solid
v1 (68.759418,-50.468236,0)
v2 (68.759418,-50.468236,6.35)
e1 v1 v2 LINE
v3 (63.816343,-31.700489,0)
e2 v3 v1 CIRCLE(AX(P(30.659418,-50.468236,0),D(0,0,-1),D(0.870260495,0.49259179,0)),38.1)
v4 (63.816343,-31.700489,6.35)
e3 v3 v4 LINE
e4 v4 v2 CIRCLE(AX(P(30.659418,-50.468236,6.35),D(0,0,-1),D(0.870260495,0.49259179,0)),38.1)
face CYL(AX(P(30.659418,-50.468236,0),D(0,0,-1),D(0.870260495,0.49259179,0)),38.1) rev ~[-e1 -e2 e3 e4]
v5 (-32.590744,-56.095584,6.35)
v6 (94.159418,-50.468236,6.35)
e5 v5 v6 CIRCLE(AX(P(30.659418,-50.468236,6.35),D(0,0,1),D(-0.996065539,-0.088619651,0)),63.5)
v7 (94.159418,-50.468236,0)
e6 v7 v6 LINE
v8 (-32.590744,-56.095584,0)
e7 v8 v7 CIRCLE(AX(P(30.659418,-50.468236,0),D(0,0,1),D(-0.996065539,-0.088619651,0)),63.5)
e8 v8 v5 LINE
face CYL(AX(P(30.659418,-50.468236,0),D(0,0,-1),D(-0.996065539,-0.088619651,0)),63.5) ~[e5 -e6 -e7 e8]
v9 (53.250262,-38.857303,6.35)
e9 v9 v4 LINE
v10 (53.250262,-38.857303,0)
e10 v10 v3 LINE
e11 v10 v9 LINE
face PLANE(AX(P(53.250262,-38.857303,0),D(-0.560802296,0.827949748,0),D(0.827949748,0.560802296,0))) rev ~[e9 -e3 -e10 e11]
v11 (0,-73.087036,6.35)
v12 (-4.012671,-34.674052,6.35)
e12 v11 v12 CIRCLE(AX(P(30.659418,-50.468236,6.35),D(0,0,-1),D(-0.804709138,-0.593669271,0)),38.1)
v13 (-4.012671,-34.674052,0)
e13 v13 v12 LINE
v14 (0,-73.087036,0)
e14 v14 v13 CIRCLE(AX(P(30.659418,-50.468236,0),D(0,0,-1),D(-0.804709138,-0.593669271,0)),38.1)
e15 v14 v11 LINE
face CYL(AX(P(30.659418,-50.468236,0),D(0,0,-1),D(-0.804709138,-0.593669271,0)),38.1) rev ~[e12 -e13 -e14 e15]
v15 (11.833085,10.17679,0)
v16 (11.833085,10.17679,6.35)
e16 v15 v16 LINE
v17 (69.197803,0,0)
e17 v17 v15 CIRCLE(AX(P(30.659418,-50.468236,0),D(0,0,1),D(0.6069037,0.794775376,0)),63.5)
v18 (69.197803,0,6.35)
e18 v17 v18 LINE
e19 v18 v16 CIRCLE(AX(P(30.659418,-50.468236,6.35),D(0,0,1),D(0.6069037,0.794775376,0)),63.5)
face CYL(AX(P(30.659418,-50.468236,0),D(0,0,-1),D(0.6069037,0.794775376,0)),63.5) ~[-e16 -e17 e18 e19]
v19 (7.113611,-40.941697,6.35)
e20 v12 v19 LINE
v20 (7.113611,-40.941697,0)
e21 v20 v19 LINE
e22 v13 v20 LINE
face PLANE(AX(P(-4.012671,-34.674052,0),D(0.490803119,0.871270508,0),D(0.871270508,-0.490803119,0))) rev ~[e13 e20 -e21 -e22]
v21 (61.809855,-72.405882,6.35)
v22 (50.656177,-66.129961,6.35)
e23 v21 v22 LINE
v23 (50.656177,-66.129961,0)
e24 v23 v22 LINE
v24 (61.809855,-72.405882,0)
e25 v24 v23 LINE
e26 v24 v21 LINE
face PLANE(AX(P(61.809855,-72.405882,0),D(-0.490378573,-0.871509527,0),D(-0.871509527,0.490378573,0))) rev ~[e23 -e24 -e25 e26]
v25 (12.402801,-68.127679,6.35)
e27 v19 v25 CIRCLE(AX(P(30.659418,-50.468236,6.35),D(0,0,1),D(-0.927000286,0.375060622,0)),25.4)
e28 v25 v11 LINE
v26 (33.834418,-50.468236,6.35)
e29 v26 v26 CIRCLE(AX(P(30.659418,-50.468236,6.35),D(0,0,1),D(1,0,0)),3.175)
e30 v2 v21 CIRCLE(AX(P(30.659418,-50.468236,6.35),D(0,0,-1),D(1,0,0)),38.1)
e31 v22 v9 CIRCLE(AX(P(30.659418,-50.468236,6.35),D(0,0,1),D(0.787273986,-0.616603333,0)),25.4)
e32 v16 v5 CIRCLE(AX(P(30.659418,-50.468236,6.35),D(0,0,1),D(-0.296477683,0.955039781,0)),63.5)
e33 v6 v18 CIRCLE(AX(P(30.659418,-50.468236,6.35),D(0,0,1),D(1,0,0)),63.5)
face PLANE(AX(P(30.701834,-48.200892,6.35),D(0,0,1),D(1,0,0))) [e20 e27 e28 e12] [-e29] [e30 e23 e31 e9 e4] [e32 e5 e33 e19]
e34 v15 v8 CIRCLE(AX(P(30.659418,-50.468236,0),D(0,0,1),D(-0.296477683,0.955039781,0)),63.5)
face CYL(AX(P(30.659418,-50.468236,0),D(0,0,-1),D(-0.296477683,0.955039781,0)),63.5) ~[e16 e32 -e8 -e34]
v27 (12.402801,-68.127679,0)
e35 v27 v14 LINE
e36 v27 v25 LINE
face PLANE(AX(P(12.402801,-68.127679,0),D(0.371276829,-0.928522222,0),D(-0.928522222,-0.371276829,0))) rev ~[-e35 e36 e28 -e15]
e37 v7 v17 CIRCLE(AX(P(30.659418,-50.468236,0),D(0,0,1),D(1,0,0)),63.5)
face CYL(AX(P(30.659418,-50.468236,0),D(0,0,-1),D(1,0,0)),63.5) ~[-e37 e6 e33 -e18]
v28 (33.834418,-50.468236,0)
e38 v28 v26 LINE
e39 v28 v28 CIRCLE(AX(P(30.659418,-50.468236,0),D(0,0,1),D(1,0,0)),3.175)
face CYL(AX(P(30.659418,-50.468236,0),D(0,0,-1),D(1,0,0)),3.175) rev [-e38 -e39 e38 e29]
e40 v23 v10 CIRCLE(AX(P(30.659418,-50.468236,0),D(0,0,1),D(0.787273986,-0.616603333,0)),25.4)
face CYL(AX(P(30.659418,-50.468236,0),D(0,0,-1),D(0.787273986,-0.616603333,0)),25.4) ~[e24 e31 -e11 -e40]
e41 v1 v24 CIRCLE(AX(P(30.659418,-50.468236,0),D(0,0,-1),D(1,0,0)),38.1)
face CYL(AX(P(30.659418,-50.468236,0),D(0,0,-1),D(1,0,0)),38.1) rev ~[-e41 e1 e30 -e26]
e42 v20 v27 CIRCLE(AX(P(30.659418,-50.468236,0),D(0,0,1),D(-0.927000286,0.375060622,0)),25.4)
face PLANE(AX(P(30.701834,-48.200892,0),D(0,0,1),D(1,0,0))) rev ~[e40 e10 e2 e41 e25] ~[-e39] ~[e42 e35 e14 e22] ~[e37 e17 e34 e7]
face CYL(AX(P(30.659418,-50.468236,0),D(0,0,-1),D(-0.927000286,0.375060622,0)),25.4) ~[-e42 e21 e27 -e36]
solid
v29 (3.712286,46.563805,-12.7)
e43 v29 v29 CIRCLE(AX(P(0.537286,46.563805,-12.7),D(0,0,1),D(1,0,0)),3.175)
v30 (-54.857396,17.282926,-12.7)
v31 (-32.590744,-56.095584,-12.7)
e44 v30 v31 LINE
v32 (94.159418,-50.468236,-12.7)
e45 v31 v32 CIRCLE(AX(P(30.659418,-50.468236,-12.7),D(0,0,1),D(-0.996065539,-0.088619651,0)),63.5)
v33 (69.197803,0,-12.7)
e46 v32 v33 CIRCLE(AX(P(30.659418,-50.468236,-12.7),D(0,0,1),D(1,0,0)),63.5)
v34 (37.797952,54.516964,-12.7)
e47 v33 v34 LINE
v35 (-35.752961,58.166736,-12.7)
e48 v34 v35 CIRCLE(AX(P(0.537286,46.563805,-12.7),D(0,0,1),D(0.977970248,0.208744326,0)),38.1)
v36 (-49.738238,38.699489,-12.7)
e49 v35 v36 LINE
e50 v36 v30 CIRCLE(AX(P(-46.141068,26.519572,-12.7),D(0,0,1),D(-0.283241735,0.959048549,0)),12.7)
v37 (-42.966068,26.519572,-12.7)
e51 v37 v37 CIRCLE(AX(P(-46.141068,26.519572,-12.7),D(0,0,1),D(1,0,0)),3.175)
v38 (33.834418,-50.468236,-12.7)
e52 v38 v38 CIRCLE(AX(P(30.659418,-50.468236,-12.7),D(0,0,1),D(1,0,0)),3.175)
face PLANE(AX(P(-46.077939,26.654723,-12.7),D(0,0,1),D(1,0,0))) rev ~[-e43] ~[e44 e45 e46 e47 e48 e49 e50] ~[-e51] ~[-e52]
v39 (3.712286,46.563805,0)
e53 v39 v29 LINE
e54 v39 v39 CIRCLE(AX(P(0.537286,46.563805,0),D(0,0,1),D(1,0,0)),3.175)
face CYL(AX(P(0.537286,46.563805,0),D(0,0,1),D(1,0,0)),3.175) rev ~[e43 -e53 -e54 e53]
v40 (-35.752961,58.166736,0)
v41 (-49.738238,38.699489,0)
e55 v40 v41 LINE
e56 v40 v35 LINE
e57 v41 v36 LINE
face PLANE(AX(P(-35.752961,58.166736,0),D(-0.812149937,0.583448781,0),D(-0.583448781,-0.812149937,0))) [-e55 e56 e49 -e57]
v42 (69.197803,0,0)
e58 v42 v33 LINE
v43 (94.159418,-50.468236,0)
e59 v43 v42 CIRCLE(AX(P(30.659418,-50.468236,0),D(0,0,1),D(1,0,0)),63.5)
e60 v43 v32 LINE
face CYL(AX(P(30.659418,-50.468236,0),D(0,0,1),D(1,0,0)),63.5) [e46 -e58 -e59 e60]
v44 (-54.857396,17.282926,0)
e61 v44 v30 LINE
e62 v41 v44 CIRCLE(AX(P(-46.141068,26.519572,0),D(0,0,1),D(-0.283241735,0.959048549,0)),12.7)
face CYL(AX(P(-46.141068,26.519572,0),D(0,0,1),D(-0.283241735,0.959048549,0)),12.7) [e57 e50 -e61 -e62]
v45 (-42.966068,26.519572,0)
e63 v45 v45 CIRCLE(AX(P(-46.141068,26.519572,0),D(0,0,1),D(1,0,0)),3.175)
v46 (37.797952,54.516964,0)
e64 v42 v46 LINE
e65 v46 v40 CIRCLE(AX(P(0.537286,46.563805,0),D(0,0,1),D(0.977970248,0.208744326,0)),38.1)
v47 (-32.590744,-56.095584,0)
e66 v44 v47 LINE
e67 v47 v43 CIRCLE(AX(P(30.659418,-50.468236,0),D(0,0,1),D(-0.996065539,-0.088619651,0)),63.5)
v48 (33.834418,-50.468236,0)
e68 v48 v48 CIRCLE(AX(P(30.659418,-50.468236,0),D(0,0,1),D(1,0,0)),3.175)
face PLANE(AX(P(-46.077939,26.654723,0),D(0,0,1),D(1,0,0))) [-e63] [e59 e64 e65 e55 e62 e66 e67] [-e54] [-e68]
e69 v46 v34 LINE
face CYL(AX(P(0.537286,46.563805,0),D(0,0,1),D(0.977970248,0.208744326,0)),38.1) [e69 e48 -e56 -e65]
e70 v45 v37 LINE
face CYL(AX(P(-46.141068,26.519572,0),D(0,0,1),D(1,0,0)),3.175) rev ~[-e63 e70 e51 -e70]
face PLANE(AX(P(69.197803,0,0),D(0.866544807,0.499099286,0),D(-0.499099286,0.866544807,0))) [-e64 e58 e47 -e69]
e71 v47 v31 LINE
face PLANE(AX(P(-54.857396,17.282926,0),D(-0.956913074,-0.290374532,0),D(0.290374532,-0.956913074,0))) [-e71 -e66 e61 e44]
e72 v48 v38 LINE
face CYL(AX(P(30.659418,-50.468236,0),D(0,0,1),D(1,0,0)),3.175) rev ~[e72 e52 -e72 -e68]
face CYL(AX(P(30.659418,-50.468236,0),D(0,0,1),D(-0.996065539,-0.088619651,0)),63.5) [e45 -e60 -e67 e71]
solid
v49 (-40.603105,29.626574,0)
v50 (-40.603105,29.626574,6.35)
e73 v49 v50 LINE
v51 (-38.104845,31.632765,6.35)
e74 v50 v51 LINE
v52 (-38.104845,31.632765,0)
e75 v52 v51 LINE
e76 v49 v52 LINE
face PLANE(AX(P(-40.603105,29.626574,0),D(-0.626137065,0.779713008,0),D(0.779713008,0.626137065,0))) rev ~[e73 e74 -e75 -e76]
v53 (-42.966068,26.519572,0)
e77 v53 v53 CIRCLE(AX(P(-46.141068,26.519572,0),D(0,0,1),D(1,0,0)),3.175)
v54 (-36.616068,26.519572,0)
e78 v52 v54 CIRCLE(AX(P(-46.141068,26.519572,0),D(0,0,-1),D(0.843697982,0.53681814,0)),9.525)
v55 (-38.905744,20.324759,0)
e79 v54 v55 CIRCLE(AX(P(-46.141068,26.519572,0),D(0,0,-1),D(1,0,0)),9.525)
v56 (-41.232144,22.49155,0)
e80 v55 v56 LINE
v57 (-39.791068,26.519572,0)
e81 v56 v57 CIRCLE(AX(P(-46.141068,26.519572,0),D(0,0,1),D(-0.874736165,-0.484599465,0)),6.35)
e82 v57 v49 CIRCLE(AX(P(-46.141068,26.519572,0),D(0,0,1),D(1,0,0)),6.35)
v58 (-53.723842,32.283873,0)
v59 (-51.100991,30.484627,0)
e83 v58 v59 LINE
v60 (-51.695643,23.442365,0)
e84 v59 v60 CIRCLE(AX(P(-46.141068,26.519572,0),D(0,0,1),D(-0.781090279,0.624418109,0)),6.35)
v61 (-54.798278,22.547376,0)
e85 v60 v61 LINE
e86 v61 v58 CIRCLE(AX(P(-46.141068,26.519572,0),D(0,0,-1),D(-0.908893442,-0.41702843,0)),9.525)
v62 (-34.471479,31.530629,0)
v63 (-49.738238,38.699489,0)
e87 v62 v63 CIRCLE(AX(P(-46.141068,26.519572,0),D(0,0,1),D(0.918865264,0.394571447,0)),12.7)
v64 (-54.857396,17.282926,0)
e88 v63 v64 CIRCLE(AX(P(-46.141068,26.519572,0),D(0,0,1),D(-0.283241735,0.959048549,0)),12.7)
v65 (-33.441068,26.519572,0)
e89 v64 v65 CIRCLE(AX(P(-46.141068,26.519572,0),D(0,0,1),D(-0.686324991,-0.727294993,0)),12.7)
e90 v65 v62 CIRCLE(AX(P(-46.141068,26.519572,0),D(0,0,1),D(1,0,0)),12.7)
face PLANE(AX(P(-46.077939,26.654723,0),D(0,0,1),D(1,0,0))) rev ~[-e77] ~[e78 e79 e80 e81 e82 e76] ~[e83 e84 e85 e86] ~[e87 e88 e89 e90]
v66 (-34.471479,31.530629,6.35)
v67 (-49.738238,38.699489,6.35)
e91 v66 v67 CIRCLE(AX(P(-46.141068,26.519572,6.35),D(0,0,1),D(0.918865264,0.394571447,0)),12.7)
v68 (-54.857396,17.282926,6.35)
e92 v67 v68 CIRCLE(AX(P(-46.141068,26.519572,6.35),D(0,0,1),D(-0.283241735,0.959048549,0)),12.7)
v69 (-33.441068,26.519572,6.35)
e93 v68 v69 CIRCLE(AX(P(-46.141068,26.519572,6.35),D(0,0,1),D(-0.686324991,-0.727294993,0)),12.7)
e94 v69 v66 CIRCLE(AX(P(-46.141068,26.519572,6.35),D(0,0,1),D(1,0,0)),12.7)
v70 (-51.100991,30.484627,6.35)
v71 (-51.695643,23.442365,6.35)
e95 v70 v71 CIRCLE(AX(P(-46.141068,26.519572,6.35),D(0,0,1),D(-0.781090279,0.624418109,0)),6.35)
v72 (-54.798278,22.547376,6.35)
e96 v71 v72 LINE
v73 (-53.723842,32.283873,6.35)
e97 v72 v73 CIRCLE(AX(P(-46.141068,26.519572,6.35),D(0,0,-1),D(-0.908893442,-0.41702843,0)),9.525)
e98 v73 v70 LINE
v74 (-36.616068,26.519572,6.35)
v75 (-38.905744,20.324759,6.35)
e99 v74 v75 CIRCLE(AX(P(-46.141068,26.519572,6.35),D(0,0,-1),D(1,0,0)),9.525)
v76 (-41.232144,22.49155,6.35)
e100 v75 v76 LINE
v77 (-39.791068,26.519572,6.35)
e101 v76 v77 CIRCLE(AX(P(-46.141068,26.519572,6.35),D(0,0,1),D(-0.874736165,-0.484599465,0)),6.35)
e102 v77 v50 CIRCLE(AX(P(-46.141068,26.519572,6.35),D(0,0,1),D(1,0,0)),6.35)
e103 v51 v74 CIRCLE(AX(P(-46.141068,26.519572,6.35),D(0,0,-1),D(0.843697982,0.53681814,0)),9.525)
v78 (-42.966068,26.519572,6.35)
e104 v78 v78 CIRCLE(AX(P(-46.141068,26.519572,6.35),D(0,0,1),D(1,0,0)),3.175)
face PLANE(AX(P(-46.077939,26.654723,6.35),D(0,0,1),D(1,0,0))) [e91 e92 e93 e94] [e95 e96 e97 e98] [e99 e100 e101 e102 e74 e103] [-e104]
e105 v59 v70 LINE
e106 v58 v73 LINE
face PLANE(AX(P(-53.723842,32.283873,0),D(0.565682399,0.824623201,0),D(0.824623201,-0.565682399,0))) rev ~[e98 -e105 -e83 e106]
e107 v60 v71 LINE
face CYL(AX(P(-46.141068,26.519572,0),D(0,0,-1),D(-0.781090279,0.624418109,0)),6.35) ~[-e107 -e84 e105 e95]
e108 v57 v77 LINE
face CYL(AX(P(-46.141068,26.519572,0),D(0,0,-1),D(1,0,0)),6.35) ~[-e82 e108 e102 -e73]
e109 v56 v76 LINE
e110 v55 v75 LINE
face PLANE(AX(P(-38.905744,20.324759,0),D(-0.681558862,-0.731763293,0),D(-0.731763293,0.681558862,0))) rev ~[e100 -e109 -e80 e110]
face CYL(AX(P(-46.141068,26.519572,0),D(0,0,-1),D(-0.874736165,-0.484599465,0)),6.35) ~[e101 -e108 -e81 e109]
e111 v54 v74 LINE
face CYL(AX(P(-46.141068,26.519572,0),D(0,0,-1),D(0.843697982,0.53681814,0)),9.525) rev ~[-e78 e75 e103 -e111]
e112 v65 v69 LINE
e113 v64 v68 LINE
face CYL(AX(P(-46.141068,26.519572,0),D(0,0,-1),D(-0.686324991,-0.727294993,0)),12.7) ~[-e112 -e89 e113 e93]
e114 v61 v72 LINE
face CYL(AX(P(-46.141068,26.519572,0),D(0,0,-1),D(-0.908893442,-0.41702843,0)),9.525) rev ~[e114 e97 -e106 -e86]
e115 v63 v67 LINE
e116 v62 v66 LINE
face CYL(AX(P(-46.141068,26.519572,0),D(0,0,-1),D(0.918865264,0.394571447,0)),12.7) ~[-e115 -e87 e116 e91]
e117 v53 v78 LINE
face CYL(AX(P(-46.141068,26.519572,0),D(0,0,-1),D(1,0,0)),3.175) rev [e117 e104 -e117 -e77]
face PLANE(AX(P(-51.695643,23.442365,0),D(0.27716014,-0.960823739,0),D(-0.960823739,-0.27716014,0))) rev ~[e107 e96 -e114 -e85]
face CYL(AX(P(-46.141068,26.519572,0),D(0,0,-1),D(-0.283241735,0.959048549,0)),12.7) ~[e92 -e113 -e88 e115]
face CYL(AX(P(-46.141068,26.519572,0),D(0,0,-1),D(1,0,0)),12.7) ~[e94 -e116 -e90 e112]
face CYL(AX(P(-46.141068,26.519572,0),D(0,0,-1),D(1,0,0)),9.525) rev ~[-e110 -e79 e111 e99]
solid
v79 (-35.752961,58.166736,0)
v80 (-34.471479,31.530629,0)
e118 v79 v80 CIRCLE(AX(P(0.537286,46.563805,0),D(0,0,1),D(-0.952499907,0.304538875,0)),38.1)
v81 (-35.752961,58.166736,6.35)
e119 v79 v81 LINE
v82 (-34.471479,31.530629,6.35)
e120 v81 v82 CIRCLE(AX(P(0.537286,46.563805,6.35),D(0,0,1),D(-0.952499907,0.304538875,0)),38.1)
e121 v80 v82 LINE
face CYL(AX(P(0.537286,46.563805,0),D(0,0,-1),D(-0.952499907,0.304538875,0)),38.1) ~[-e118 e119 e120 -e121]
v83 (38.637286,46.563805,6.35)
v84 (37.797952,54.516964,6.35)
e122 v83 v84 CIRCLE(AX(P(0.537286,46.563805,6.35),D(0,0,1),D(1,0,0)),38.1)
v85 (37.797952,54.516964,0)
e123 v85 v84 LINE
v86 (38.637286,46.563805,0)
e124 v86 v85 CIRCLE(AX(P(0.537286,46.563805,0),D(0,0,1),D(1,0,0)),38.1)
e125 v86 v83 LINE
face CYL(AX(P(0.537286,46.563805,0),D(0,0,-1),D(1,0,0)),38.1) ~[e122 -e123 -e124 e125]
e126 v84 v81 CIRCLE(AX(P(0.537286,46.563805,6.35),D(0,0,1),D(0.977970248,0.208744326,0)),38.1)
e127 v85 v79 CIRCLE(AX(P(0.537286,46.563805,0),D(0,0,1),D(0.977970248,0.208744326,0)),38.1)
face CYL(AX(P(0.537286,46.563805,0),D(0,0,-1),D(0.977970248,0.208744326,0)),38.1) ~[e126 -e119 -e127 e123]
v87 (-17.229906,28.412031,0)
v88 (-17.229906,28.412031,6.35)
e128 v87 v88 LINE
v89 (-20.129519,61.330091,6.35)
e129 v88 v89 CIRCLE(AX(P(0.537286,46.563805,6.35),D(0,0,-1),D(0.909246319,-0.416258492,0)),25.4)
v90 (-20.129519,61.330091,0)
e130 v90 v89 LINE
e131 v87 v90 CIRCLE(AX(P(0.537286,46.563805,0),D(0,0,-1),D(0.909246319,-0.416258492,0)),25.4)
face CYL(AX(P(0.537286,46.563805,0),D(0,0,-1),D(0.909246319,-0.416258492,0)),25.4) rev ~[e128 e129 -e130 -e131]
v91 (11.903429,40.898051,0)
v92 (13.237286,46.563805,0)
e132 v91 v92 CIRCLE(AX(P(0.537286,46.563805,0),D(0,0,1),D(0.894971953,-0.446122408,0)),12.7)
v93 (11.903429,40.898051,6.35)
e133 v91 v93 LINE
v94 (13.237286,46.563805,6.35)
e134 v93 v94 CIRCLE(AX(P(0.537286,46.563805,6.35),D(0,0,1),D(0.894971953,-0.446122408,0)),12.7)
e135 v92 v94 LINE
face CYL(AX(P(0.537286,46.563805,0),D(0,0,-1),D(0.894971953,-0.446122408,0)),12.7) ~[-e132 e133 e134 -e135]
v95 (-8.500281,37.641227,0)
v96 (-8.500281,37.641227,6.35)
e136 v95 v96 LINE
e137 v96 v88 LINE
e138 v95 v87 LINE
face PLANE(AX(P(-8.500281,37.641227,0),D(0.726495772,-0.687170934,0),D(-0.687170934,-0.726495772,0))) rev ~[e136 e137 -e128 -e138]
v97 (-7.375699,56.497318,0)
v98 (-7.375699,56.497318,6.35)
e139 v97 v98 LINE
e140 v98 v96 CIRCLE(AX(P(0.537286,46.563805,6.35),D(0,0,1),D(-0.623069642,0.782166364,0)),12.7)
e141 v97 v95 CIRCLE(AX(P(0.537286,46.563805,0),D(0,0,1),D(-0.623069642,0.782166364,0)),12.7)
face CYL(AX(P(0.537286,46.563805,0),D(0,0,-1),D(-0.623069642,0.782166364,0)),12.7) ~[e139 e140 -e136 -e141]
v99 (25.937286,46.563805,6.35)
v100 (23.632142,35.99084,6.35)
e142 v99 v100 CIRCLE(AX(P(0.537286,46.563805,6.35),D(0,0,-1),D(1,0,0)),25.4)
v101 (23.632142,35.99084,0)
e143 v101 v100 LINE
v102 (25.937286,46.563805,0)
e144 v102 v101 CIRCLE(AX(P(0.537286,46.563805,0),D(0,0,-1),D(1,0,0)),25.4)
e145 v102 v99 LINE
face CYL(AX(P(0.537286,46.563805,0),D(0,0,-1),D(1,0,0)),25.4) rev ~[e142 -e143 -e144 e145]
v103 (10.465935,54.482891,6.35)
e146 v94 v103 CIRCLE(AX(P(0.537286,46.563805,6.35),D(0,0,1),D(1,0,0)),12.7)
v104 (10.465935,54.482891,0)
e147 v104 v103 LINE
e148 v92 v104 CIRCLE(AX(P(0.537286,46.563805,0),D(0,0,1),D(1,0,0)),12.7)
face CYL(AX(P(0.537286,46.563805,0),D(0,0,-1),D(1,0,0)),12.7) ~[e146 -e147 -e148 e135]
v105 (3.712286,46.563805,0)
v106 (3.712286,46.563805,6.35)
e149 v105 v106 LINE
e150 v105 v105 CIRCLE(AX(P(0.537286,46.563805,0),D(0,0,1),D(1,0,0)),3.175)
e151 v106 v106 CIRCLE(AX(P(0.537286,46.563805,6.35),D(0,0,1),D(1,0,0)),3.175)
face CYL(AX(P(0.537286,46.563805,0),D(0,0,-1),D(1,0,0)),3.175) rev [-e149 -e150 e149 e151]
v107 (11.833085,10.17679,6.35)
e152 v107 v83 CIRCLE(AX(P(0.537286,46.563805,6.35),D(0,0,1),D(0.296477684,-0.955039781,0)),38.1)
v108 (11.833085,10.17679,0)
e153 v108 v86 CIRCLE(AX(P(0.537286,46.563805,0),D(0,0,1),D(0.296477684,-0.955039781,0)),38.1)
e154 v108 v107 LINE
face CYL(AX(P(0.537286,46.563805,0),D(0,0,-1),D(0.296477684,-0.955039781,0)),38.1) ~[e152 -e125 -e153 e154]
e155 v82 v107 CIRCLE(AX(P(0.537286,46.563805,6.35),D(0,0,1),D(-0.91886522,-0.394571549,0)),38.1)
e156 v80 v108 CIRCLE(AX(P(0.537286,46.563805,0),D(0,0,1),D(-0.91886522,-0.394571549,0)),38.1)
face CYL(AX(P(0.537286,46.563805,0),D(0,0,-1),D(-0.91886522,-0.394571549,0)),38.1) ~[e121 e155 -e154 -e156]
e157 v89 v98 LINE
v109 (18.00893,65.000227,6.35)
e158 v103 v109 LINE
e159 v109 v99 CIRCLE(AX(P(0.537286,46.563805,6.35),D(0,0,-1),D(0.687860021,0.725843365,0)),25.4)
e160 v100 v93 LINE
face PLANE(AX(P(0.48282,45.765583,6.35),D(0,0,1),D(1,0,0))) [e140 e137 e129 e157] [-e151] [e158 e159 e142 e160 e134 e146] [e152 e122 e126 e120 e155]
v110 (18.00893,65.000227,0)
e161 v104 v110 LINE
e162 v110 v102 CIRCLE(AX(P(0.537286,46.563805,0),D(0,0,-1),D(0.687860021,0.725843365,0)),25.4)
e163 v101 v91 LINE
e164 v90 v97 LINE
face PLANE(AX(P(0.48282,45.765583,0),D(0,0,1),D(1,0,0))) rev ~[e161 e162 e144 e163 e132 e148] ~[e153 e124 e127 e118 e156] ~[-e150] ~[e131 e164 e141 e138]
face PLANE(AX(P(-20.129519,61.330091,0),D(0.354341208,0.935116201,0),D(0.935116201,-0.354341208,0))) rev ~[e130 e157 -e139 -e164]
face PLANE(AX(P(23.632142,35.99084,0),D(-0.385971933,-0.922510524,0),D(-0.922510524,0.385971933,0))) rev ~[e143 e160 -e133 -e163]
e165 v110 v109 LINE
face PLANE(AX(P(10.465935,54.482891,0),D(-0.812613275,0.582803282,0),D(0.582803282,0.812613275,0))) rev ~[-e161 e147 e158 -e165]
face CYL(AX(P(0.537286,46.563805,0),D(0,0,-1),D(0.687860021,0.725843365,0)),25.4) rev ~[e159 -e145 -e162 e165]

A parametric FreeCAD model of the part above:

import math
import FreeCAD as App
import Part
import Sketcher
Q = App.Units.Quantity

doc = App.newDocument("Part")
body = doc.addObject("PartDesign::Body", "Body")

# Sketch on XY plane
sketch1 = body.newObject("Sketcher::SketchObject", "Sketch")
sketch1.AttachmentSupport = (doc.getObject("XY_Plane"), [""])
sketch1.MapMode = "FlatFace"
sketch1.addGeometry(Part.ArcOfCircle(Part.Circle(App.Vector(0.537286, 46.563805, 0), App.Vector(0, 0, 1), 38.1), math.radians(162.269576), math.radians(203.239255)), False)
sketch1.addGeometry(Part.ArcOfCircle(Part.Circle(App.Vector(0.537286, 46.563805, 0), App.Vector(0, 0, 1), 38.1), math.radians(-156.760745), math.radians(-72.753833)), False)
sketch1.addGeometry(Part.ArcOfCircle(Part.Circle(App.Vector(0.537286, 46.563805, 0), App.Vector(0, 0, 1), 38.1), math.radians(-72.753833), math.radians(0)), False)
sketch1.addGeometry(Part.ArcOfCircle(Part.Circle(App.Vector(0.537286, 46.563805, 0), App.Vector(0, 0, 1), 38.1), math.radians(0), math.radians(12.048777)), False)
sketch1.addGeometry(Part.ArcOfCircle(Part.Circle(App.Vector(0.537286, 46.563805, 0), App.Vector(0, 0, 1), 38.1), math.radians(12.048777), math.radians(162.269576)), False)
sketch1.addGeometry(Part.ArcOfCircle(Part.Circle(App.Vector(0.537286, 46.563805, 0), App.Vector(0, 0, 1), 25.4), math.radians(144.454462), math.radians(225.613441)), False)
sketch1.addGeometry(Part.LineSegment(App.Vector(-20.129519, 61.330091, 0), App.Vector(-7.375699, 56.497318, 0)), False)
sketch1.addGeometry(Part.ArcOfCircle(Part.Circle(App.Vector(0.537286, 46.563805, 0), App.Vector(0, 0, 1), 12.7), math.radians(128.540644), math.radians(224.633173)), False)
sketch1.addGeometry(Part.LineSegment(App.Vector(-8.500281, 37.641227, 0), App.Vector(-17.229906, 28.412031, 0)), False)
sketch1.addGeometry(Part.ArcOfCircle(Part.Circle(App.Vector(0.537286, 46.563805, 0), App.Vector(0, 0, 1), 25.4), math.radians(0), math.radians(46.539051)), False)
sketch1.addGeometry(Part.ArcOfCircle(Part.Circle(App.Vector(0.537286, 46.563805, 0), App.Vector(0, 0, 1), 25.4), math.radians(-24.598595), math.radians(0)), False)
sketch1.addGeometry(Part.LineSegment(App.Vector(23.632142, 35.99084, 0), App.Vector(11.903429, 40.898051, 0)), False)
sketch1.addGeometry(Part.ArcOfCircle(Part.Circle(App.Vector(0.537286, 46.563805, 0), App.Vector(0, 0, 1), 12.7), math.radians(-26.495172), math.radians(0)), False)
sketch1.addGeometry(Part.ArcOfCircle(Part.Circle(App.Vector(0.537286, 46.563805, 0), App.Vector(0, 0, 1), 12.7), math.radians(0), math.radians(38.575844)), False)
sketch1.addGeometry(Part.LineSegment(App.Vector(10.465935, 54.482891, 0), App.Vector(18.00893, 65.000227, 0)), False)
sketch1.addGeometry(Part.Circle(App.Vector(0.537286, 46.563805, 0), App.Vector(0, 0, 1), 3.175), False)
sketch1.addConstraint(Sketcher.Constraint("Tangent", 0, 2, 1, 1))
sketch1.addConstraint(Sketcher.Constraint("Tangent", 1, 2, 2, 1))
sketch1.addConstraint(Sketcher.Constraint("Tangent", 2, 2, 3, 1))
sketch1.addConstraint(Sketcher.Constraint("Tangent", 3, 2, 4, 1))
sketch1.addConstraint(Sketcher.Constraint("Tangent", 4, 2, 0, 1))
sketch1.addConstraint(Sketcher.Constraint("Coincident", 5, 1, 6, 1))
sketch1.addConstraint(Sketcher.Constraint("Coincident", 6, 2, 7, 1))
sketch1.addConstraint(Sketcher.Constraint("Coincident", 7, 2, 8, 1))
sketch1.addConstraint(Sketcher.Constraint("Coincident", 8, 2, 5, 2))
sketch1.addConstraint(Sketcher.Constraint("Tangent", 9, 1, 10, 2))
sketch1.addConstraint(Sketcher.Constraint("Coincident", 10, 1, 11, 1))
sketch1.addConstraint(Sketcher.Constraint("Coincident", 11, 2, 12, 1))
sketch1.addConstraint(Sketcher.Constraint("Tangent", 12, 2, 13, 1))
sketch1.addConstraint(Sketcher.Constraint("Coincident", 13, 2, 14, 1))
sketch1.addConstraint(Sketcher.Constraint("Coincident", 14, 2, 9, 2))
sketch1.addConstraint(Sketcher.Constraint("Coincident", 2, 3, 0, 3))
sketch1.addConstraint(Sketcher.Constraint("Coincident", 5, 3, 0, 3))
sketch1.addConstraint(Sketcher.Constraint("Coincident", 7, 3, 0, 3))
sketch1.addConstraint(Sketcher.Constraint("Coincident", 9, 3, 0, 3))
sketch1.addConstraint(Sketcher.Constraint("Coincident", 12, 3, 0, 3))
sketch1.addConstraint(Sketcher.Constraint("Coincident", 15, 3, 0, 3))
sketch1.addConstraint(Sketcher.Constraint("Equal", 5, 9))
sketch1.addConstraint(Sketcher.Constraint("Equal", 9, 10))
sketch1.addConstraint(Sketcher.Constraint("Equal", 7, 12))
sketch1.addConstraint(Sketcher.Constraint("Equal", 12, 13))
sketch1.addConstraint(Sketcher.Constraint("Horizontal", 15, 3, 2, 2))
sketch1.addConstraint(Sketcher.Constraint("Horizontal", 2, 2, 9, 1))
sketch1.addConstraint(Sketcher.Constraint("Horizontal", 9, 1, 12, 2))
sketch1.addConstraint(Sketcher.Constraint("Radius", 5, Q("1 in")))
sketch1.addConstraint(Sketcher.Constraint("Radius", 0, Q("1.5 in")))
sketch1.addConstraint(Sketcher.Constraint("Radius", 7, Q("0.5 in")))
sketch1.addConstraint(Sketcher.Constraint("Diameter", 15, Q("0.25 in")))
sketch1.addConstraint(Sketcher.Constraint("DistanceX", 6, 2, -1, 1, 7.375699))
sketch1.addConstraint(Sketcher.Constraint("DistanceX", 3, 3, 1, 2, 11.2958))
sketch1.addConstraint(Sketcher.Constraint("DistanceY", 8, 2, 0, 2, 3.118598))
sketch1.addConstraint(Sketcher.Constraint("DistanceX", 11, 2, 14, 2, 6.105501))
sketch1.addConstraint(Sketcher.Constraint("Distance", 14, 12.942609))
sketch1.addConstraint(Sketcher.Constraint("DistanceX", 0, 2, -1, 1, 34.471479))
sketch1.addConstraint(Sketcher.Constraint("DistanceY", -1, 1, 0, 2, 31.530629))
sketch1.addConstraint(Sketcher.Constraint("DistanceY", -1, 1, 1, 2, 10.17679))
sketch1.addConstraint(Sketcher.Constraint("DistanceX", -1, 1, 3, 2, 37.797952))
sketch1.addConstraint(Sketcher.Constraint("DistanceX", 4, 2, -1, 1, 35.752961))
sketch1.addConstraint(Sketcher.Constraint("DistanceX", 5, 1, -1, 1, 20.129519))
sketch1.addConstraint(Sketcher.Constraint("DistanceX", 7, 2, -1, 1, 8.500281))
sketch1.addConstraint(Sketcher.Constraint("DistanceY", -1, 1, 10, 1, 35.99084))
sketch1.addConstraint(Sketcher.Constraint("DistanceX", -1, 1, 11, 2, 11.903429))
pad1 = body.newObject("PartDesign::Pad", "Pad")
pad1.Profile = sketch1
pad1.Length = Q("0.25 in")
body2 = doc.addObject("PartDesign::Body", "Body001")

# Sketch on XY plane
sketch2 = body2.newObject("Sketcher::SketchObject", "Sketch001")
sketch2.AttachmentSupport = (doc.getObject("XY_Plane001"), [""])
sketch2.MapMode = "FlatFace"
sketch2.addGeometry(Part.ArcOfCircle(Part.Circle(App.Vector(30.659418, -50.468236, 0), App.Vector(0, 0, 1), 63.5), math.radians(107.246167), math.radians(185.084202)), False)
sketch2.addGeometry(Part.ArcOfCircle(Part.Circle(App.Vector(30.659418, -50.468236, 0), App.Vector(0, 0, 1), 63.5), math.radians(-174.915798), math.radians(0)), False)
sketch2.addGeometry(Part.ArcOfCircle(Part.Circle(App.Vector(30.659418, -50.468236, 0), App.Vector(0, 0, 1), 63.5), math.radians(0), math.radians(52.634045)), False)
sketch2.addGeometry(Part.ArcOfCircle(Part.Circle(App.Vector(30.659418, -50.468236, 0), App.Vector(0, 0, 1), 63.5), math.radians(52.634045), math.radians(107.246167)), False)
sketch2.addGeometry(Part.ArcOfCircle(Part.Circle(App.Vector(30.659418, -50.468236, 0), App.Vector(0, 0, 1), 38.1), math.radians(155.509301), math.radians(216.417826)), False)
sketch2.addGeometry(Part.LineSegment(App.Vector(-4.012671, -34.674052, 0), App.Vector(7.113611, -40.941697, 0)), False)
sketch2.addGeometry(Part.ArcOfCircle(Part.Circle(App.Vector(30.659418, -50.468236, 0), App.Vector(0, 0, 1), 25.4), math.radians(157.97194), math.radians(224.047434)), False)
sketch2.addGeometry(Part.LineSegment(App.Vector(12.402801, -68.127679, 0), App.Vector(0, -73.087036, 0)), False)
sketch2.addGeometry(Part.ArcOfCircle(Part.Circle(App.Vector(30.659418, -50.468236, 0), App.Vector(0, 0, 1), 38.1), math.radians(-35.15506), math.radians(0)), False)
sketch2.addGeometry(Part.LineSegment(App.Vector(61.809855, -72.405882, 0), App.Vector(50.656177, -66.129961, 0)), False)
sketch2.addGeometry(Part.ArcOfCircle(Part.Circle(App.Vector(30.659418, -50.468236, 0), App.Vector(0, 0, 1), 25.4), math.radians(-38.068514), math.radians(27.201638)), False)
sketch2.addGeometry(Part.LineSegment(App.Vector(53.250262, -38.857303, 0), App.Vector(63.816343, -31.700489, 0)), False)
sketch2.addGeometry(Part.ArcOfCircle(Part.Circle(App.Vector(30.659418, -50.468236, 0), App.Vector(0, 0, 1), 38.1), math.radians(0), math.radians(29.511075)), False)
sketch2.addGeometry(Part.Circle(App.Vector(30.659418, -50.468236, 0), App.Vector(0, 0, 1), 3.175), False)
sketch2.addConstraint(Sketcher.Constraint("Tangent", 0, 2, 1, 1))
sketch2.addConstraint(Sketcher.Constraint("Tangent", 1, 2, 2, 1))
sketch2.addConstraint(Sketcher.Constraint("Tangent", 2, 2, 3, 1))
sketch2.addConstraint(Sketcher.Constraint("Tangent", 3, 2, 0, 1))
sketch2.addConstraint(Sketcher.Constraint("Coincident", 4, 1, 5, 1))
sketch2.addConstraint(Sketcher.Constraint("Coincident", 5, 2, 6, 1))
sketch2.addConstraint(Sketcher.Constraint("Coincident", 6, 2, 7, 1))
sketch2.addConstraint(Sketcher.Constraint("Coincident", 7, 2, 4, 2))
sketch2.addConstraint(Sketcher.Constraint("Coincident", 8, 1, 9, 1))
sketch2.addConstraint(Sketcher.Constraint("Coincident", 9, 2, 10, 1))
sketch2.addConstraint(Sketcher.Constraint("Coincident", 10, 2, 11, 1))
sketch2.addConstraint(Sketcher.Constraint("Coincident", 11, 2, 12, 2))
sketch2.addConstraint(Sketcher.Constraint("Tangent", 12, 1, 8, 2))
sketch2.addConstraint(Sketcher.Constraint("Coincident", 4, 3, 0, 3))
sketch2.addConstraint(Sketcher.Constraint("Coincident", 6, 3, 0, 3))
sketch2.addConstraint(Sketcher.Constraint("Coincident", 8, 3, 0, 3))
sketch2.addConstraint(Sketcher.Constraint("Coincident", 10, 3, 0, 3))
sketch2.addConstraint(Sketcher.Constraint("Coincident", 13, 3, 0, 3))
sketch2.addConstraint(Sketcher.Constraint("Equal", 0, 1))
sketch2.addConstraint(Sketcher.Constraint("Equal", 4, 8))
sketch2.addConstraint(Sketcher.Constraint("Equal", 6, 10))
sketch2.addConstraint(Sketcher.Constraint("Equal", 8, 12))
sketch2.addConstraint(Sketcher.Constraint("PointOnObject", 2, 2, -1))
sketch2.addConstraint(Sketcher.Constraint("PointOnObject", 7, 2, -2))
sketch2.addConstraint(Sketcher.Constraint("Horizontal", 13, 3, 1, 2))
sketch2.addConstraint(Sketcher.Constraint("Horizontal", 1, 2, 12, 1))
sketch2.addConstraint(Sketcher.Constraint("Radius", 6, Q("1 in")))
sketch2.addConstraint(Sketcher.Constraint("Radius", 0, Q("2.5 in")))
sketch2.addConstraint(Sketcher.Constraint("Radius", 4, Q("1.5 in")))
sketch2.addConstraint(Sketcher.Constraint("Diameter", 13, Q("0.25 in")))
sketch2.addConstraint(Sketcher.Constraint("DistanceX", 0, 2, -1, 1, Q("1.2831001 in")))
sketch2.addConstraint(Sketcher.Constraint("DistanceX", -1, 1, 6, 2, 12.402801))
sketch2.addConstraint(Sketcher.Constraint("DistanceY", 7, 2, 0, 3, 22.618799))
sketch2.addConstraint(Sketcher.Constraint("Distance", 5, 12.77018))
sketch2.addConstraint(Sketcher.Constraint("Distance", 11, 12.761742))
sketch2.addConstraint(Sketcher.Constraint("DistanceY", -1, 1, 3, 2, 10.17679))
sketch2.addConstraint(Sketcher.Constraint("DistanceX", 4, 1, -1, 1, 4.012671))
sketch2.addConstraint(Sketcher.Constraint("DistanceY", 6, 2, -1, 1, 68.127679))
sketch2.addConstraint(Sketcher.Constraint("DistanceY", 8, 1, -1, 1, 72.405882))
sketch2.addConstraint(Sketcher.Constraint("DistanceY", 9, 2, -1, 1, 66.129961))
sketch2.addConstraint(Sketcher.Constraint("DistanceY", 11, 2, -1, 1, 31.700489))
pad2 = body2.newObject("PartDesign::Pad", "Pad001")
pad2.Profile = sketch2
pad2.Length = Q("0.25 in")
body3 = doc.addObject("PartDesign::Body", "Body002")

# Sketch on XY plane
sketch3 = body3.newObject("Sketcher::SketchObject", "Sketch002")
sketch3.AttachmentSupport = (doc.getObject("XY_Plane002"), [""])
sketch3.MapMode = "FlatFace"
sketch3.addGeometry(Part.ArcOfCircle(Part.Circle(App.Vector(-46.141068, 26.519572, 0), App.Vector(0, 0, 1), 12.7), math.radians(23.239249), math.radians(106.453777)), False)
sketch3.addGeometry(Part.ArcOfCircle(Part.Circle(App.Vector(-46.141068, 26.519572, 0), App.Vector(0, 0, 1), 12.7), math.radians(106.453777), math.radians(226.660101)), False)
sketch3.addGeometry(Part.ArcOfCircle(Part.Circle(App.Vector(-46.141068, 26.519572, 0), App.Vector(0, 0, 1), 12.7), math.radians(-133.339899), math.radians(0)), False)
sketch3.addGeometry(Part.ArcOfCircle(Part.Circle(App.Vector(-46.141068, 26.519572, 0), App.Vector(0, 0, 1), 12.7), math.radians(0), math.radians(23.239249)), False)
sketch3.addGeometry(Part.ArcOfCircle(Part.Circle(App.Vector(-46.141068, 26.519572, 0), App.Vector(0, 0, 1), 9.525), math.radians(142.758493), math.radians(204.647121)), False)
sketch3.addGeometry(Part.LineSegment(App.Vector(-53.723842, 32.283873, 0), App.Vector(-51.100991, 30.484627, 0)), False)
sketch3.addGeometry(Part.ArcOfCircle(Part.Circle(App.Vector(-46.141068, 26.519572, 0), App.Vector(0, 0, 1), 6.35), math.radians(141.360509), math.radians(208.986234)), False)
sketch3.addGeometry(Part.LineSegment(App.Vector(-51.695643, 23.442365, 0), App.Vector(-54.798278, 22.547376, 0)), False)
sketch3.addGeometry(Part.ArcOfCircle(Part.Circle(App.Vector(-46.141068, 26.519572, 0), App.Vector(0, 0, 1), 9.525), math.radians(0), math.radians(32.467297)), False)
sketch3.addGeometry(Part.ArcOfCircle(Part.Circle(App.Vector(-46.141068, 26.519572, 0), App.Vector(0, 0, 1), 9.525), math.radians(-40.569814), math.radians(0)), False)
sketch3.addGeometry(Part.LineSegment(App.Vector(-38.905744, 20.324759, 0), App.Vector(-41.232144, 22.49155, 0)), False)
sketch3.addGeometry(Part.ArcOfCircle(Part.Circle(App.Vector(-46.141068, 26.519572, 0), App.Vector(0, 0, 1), 6.35), math.radians(-39.37062), math.radians(0)), False)
sketch3.addGeometry(Part.ArcOfCircle(Part.Circle(App.Vector(-46.141068, 26.519572, 0), App.Vector(0, 0, 1), 6.35), math.radians(0), math.radians(29.294034)), False)
sketch3.addGeometry(Part.LineSegment(App.Vector(-40.603105, 29.626574, 0), App.Vector(-38.104845, 31.632765, 0)), False)
sketch3.addGeometry(Part.Circle(App.Vector(-46.141068, 26.519572, 0), App.Vector(0, 0, 1), 3.175), False)
sketch3.addConstraint(Sketcher.Constraint("Tangent", 0, 2, 1, 1))
sketch3.addConstraint(Sketcher.Constraint("Tangent", 1, 2, 2, 1))
sketch3.addConstraint(Sketcher.Constraint("Tangent", 2, 2, 3, 1))
sketch3.addConstraint(Sketcher.Constraint("Tangent", 3, 2, 0, 1))
sketch3.addConstraint(Sketcher.Constraint("Coincident", 4, 1, 5, 1))
sketch3.addConstraint(Sketcher.Constraint("Coincident", 5, 2, 6, 1))
sketch3.addConstraint(Sketcher.Constraint("Coincident", 6, 2, 7, 1))
sketch3.addConstraint(Sketcher.Constraint("Coincident", 7, 2, 4, 2))
sketch3.addConstraint(Sketcher.Constraint("Tangent", 8, 1, 9, 2))
sketch3.addConstraint(Sketcher.Constraint("Coincident", 9, 1, 10, 1))
sketch3.addConstraint(Sketcher.Constraint("Coincident", 10, 2, 11, 1))
sketch3.addConstraint(Sketcher.Constraint("Tangent", 11, 2, 12, 1))
sketch3.addConstraint(Sketcher.Constraint("Coincident", 12, 2, 13, 1))
sketch3.addConstraint(Sketcher.Constraint("Coincident", 13, 2, 8, 2))
sketch3.addConstraint(Sketcher.Constraint("Coincident", 4, 3, 0, 3))
sketch3.addConstraint(Sketcher.Constraint("Coincident", 6, 3, 0, 3))
sketch3.addConstraint(Sketcher.Constraint("Coincident", 8, 3, 0, 3))
sketch3.addConstraint(Sketcher.Constraint("Coincident", 11, 3, 0, 3))
sketch3.addConstraint(Sketcher.Constraint("Coincident", 14, 3, 0, 3))
sketch3.addConstraint(Sketcher.Constraint("Equal", 0, 1))
sketch3.addConstraint(Sketcher.Constraint("Equal", 4, 8))
sketch3.addConstraint(Sketcher.Constraint("Equal", 8, 9))
sketch3.addConstraint(Sketcher.Constraint("Equal", 6, 11))
sketch3.addConstraint(Sketcher.Constraint("Equal", 11, 12))
sketch3.addConstraint(Sketcher.Constraint("Horizontal", 14, 3, 2, 2))
sketch3.addConstraint(Sketcher.Constraint("Horizontal", 2, 2, 8, 1))
sketch3.addConstraint(Sketcher.Constraint("Horizontal", 8, 1, 11, 2))
sketch3.addConstraint(Sketcher.Constraint("Radius", 0, Q("0.5 in")))
sketch3.addConstraint(Sketcher.Constraint("Diameter", 14, Q("0.25 in")))
sketch3.addConstraint(Sketcher.Constraint("Radius", 6, Q("0.25 in")))
sketch3.addConstraint(Sketcher.Constraint("Radius", 4, Q("0.375 in")))
sketch3.addConstraint(Sketcher.Constraint("DistanceY", 8, 3, 4, 1, 5.764301))
sketch3.addConstraint(Sketcher.Constraint("DistanceX", 10, 2, 9, 1, 2.3264))
sketch3.addConstraint(Sketcher.Constraint("DistanceY", 11, 2, 12, 2, 3.107002))
sketch3.addConstraint(Sketcher.Constraint("Distance", 7, 3.229141))
sketch3.addConstraint(Sketcher.Constraint("Distance", 10, 3.17917))
sketch3.addConstraint(Sketcher.Constraint("DistanceX", 0, 3, -1, 1, 46.141068))
sketch3.addConstraint(Sketcher.Constraint("DistanceY", -1, 1, 0, 3, 26.519572))
sketch3.addConstraint(Sketcher.Constraint("DistanceX", 0, 2, -1, 1, 49.738238))
sketch3.addConstraint(Sketcher.Constraint("DistanceX", 3, 2, -1, 1, 34.471479))
sketch3.addConstraint(Sketcher.Constraint("DistanceX", 5, 2, -1, 1, 51.100991))
sketch3.addConstraint(Sketcher.Constraint("DistanceX", 7, 2, -1, 1, 54.798278))
sketch3.addConstraint(Sketcher.Constraint("DistanceY", 1, 2, 7, 2, 5.264451))
sketch3.addConstraint(Sketcher.Constraint("DistanceX", 12, 2, 13, 2, 2.49826))
pad3 = body3.newObject("PartDesign::Pad", "Pad002")
pad3.Profile = sketch3
pad3.Length = Q("0.25 in")
body4 = doc.addObject("PartDesign::Body", "Body003")

# Sketch on XY plane
sketch4 = body4.newObject("Sketcher::SketchObject", "Sketch003")
sketch4.AttachmentSupport = (doc.getObject("XY_Plane003"), [""])
sketch4.MapMode = "FlatFace"
sketch4.addGeometry(Part.LineSegment(App.Vector(-35.752961, 58.166736, 0), App.Vector(-49.738238, 38.699489, 0)), False)
sketch4.addGeometry(Part.ArcOfCircle(Part.Circle(App.Vector(-46.141068, 26.519572, 0), App.Vector(0, 0, 1), 12.7), math.radians(106.453777), math.radians(226.660101)), False)
sketch4.addGeometry(Part.LineSegment(App.Vector(-54.857396, 17.282926, 0), App.Vector(-32.590744, -56.095584, 0)), False)
sketch4.addGeometry(Part.ArcOfCircle(Part.Circle(App.Vector(30.659418, -50.468236, 0), App.Vector(0, 0, 1), 63.5), math.radians(-174.915798), math.radians(0)), False)
sketch4.addGeometry(Part.ArcOfCircle(Part.Circle(App.Vector(30.659418, -50.468236, 0), App.Vector(0, 0, 1), 63.5), math.radians(0), math.radians(52.634045)), False)
sketch4.addGeometry(Part.LineSegment(App.Vector(69.197803, 0, 0), App.Vector(37.797952, 54.516964, 0)), False)
sketch4.addGeometry(Part.ArcOfCircle(Part.Circle(App.Vector(0.537286, 46.563805, 0), App.Vector(0, 0, 1), 38.1), math.radians(12.048777), math.radians(162.269576)), False)
sketch4.addGeometry(Part.Circle(App.Vector(30.659418, -50.468236, 0), App.Vector(0, 0, 1), 3.175), False)
sketch4.addGeometry(Part.Circle(App.Vector(-46.141068, 26.519572, 0), App.Vector(0, 0, 1), 3.175), False)
sketch4.addGeometry(Part.Circle(App.Vector(0.537286, 46.563805, 0), App.Vector(0, 0, 1), 3.175), False)
sketch4.addConstraint(Sketcher.Constraint("Coincident", 0, 2, 1, 1))
sketch4.addConstraint(Sketcher.Constraint("Coincident", 1, 2, 2, 1))
sketch4.addConstraint(Sketcher.Constraint("Coincident", 2, 2, 3, 1))
sketch4.addConstraint(Sketcher.Constraint("Tangent", 3, 2, 4, 1))
sketch4.addConstraint(Sketcher.Constraint("Coincident", 4, 2, 5, 1))
sketch4.addConstraint(Sketcher.Constraint("Coincident", 5, 2, 6, 1))
sketch4.addConstraint(Sketcher.Constraint("Coincident", 6, 2, 0, 1))
sketch4.addConstraint(Sketcher.Constraint("Coincident", 7, 3, 3, 3))
sketch4.addConstraint(Sketcher.Constraint("Coincident", 8, 3, 1, 3))
sketch4.addConstraint(Sketcher.Constraint("Coincident", 9, 3, 6, 3))
sketch4.addConstraint(Sketcher.Constraint("Equal", 3, 4))
sketch4.addConstraint(Sketcher.Constraint("Equal", 7, 8))
sketch4.addConstraint(Sketcher.Constraint("Equal", 8, 9))
sketch4.addConstraint(Sketcher.Constraint("PointOnObject", 4, 2, -1))
sketch4.addConstraint(Sketcher.Constraint("Horizontal", 7, 3, 3, 2))
sketch4.addConstraint(Sketcher.Constraint("Radius", 1, Q("0.5 in")))
sketch4.addConstraint(Sketcher.Constraint("Radius", 3, Q("2.5 in")))
sketch4.addConstraint(Sketcher.Constraint("Radius", 6, Q("1.5 in")))
sketch4.addConstraint(Sketcher.Constraint("Diameter", 7, Q("0.25 in")))
sketch4.addConstraint(Sketcher.Constraint("DistanceX", 2, 2, -1, 1, Q("1.2831001 in")))
sketch4.addConstraint(Sketcher.Constraint("DistanceX", 1, 3, -1, 1, 46.141068))
sketch4.addConstraint(Sketcher.Constraint("DistanceY", -1, 1, 1, 3, 26.519572))
sketch4.addConstraint(Sketcher.Constraint("DistanceX", -1, 1, 3, 3, 30.659418))
sketch4.addConstraint(Sketcher.Constraint("DistanceX", 0, 2, -1, 1, 49.738238))
sketch4.addConstraint(Sketcher.Constraint("DistanceX", -1, 1, 5, 2, 37.797952))
sketch4.addConstraint(Sketcher.Constraint("DistanceX", 6, 2, -1, 1, 35.752961))
sketch4.addConstraint(Sketcher.Constraint("DistanceY", 3, 3, 1, 3, 76.987808))
sketch4.addConstraint(Sketcher.Constraint("DistanceY", 3, 3, 6, 3, 97.032042))
sketch4.addConstraint(Sketcher.Constraint("DistanceX", 1, 2, 6, 3, 55.394681))
sketch4.addConstraint(Sketcher.Constraint("DistanceY", 1, 2, 6, 3, 29.28088))
pad4 = body4.newObject("PartDesign::Pad", "Pad003")
pad4.Profile = sketch4
pad4.Length = Q("0.5 in")
pad4.Reversed = True

doc.recompute()
